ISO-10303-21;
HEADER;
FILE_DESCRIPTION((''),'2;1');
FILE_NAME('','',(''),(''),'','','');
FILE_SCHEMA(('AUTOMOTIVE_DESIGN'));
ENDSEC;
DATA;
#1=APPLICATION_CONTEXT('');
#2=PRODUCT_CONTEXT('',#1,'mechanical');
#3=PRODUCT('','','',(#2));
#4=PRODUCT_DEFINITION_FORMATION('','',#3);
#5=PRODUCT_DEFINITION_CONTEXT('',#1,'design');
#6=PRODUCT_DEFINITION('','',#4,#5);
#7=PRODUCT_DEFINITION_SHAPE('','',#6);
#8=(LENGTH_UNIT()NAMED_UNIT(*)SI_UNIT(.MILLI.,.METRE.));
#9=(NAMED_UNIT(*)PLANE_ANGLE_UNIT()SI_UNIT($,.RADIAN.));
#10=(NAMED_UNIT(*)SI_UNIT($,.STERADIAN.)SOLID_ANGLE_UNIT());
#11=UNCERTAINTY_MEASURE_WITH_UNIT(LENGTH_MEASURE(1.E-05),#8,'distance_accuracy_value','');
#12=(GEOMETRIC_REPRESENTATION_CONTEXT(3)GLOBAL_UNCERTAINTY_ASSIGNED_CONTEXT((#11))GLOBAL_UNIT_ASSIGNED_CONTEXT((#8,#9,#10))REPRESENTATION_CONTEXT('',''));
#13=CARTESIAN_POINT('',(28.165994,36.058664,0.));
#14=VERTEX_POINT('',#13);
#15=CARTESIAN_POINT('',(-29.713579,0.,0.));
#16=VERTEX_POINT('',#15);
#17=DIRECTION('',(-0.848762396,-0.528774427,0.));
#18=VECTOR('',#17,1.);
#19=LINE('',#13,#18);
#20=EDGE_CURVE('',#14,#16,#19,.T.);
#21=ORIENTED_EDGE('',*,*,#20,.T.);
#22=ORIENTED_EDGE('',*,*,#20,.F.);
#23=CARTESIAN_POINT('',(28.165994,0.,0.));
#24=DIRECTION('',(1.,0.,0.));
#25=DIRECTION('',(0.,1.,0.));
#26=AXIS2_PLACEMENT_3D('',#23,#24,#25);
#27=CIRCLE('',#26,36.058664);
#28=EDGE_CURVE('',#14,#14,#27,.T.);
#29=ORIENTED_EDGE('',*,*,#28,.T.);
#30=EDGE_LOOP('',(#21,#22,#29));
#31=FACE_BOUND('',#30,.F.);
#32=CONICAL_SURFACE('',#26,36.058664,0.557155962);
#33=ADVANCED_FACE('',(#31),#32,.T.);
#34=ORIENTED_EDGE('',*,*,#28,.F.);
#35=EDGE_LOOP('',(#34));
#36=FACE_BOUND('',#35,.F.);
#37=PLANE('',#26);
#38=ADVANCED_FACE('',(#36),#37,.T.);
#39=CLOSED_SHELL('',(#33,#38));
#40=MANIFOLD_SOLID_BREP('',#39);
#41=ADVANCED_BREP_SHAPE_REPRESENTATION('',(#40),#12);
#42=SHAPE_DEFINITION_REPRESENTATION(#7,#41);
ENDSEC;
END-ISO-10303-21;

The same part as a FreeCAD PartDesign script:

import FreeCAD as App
import Part
import Sketcher
Q = App.Units.Quantity

doc = App.newDocument("Part")
body = doc.addObject("PartDesign::Body", "Body")

sketch1 = body.newObject("Sketcher::SketchObject", "Sketch")
sketch1.AttachmentSupport = (doc.getObject("XY_Plane"), [""])
sketch1.MapMode = "FlatFace"
sketch1.addGeometry([
    Part.LineSegment(App.Vector(28.165994, 36.058664, 0), App.Vector(-29.713579, 0, 0)),
    Part.LineSegment(App.Vector(-29.713579, 0, 0), App.Vector(28.165994, 0, 0)),
    Part.LineSegment(App.Vector(28.165994, 0, 0), App.Vector(28.165994, 36.058664, 0)),
], False)
sketch1.addConstraint([
    Sketcher.Constraint("Coincident", 0, 2, 1, 1),
    Sketcher.Constraint("Coincident", 1, 2, 2, 1),
    Sketcher.Constraint("Coincident", 2, 2, 0, 1),
    Sketcher.Constraint("Horizontal", 1),
    Sketcher.Constraint("Vertical", 2),
    Sketcher.Constraint("PointOnObject", 0, 2, -1),
    Sketcher.Constraint("DistanceX", 1, 1, 1, 2, Q("57.879573 mm")),
    Sketcher.Constraint("DistanceY", 2, 1, 2, 2, Q("36.058664 mm")),
    Sketcher.Constraint("DistanceX", 0, 2, -1, 1, Q("29.713579 mm")),
])
revolution = body.newObject("PartDesign::Revolution", "Revolution")
revolution.Profile = sketch1
revolution.ReferenceAxis = (sketch1, ["H_Axis"])
revolution.Angle = 360

doc.recompute()
